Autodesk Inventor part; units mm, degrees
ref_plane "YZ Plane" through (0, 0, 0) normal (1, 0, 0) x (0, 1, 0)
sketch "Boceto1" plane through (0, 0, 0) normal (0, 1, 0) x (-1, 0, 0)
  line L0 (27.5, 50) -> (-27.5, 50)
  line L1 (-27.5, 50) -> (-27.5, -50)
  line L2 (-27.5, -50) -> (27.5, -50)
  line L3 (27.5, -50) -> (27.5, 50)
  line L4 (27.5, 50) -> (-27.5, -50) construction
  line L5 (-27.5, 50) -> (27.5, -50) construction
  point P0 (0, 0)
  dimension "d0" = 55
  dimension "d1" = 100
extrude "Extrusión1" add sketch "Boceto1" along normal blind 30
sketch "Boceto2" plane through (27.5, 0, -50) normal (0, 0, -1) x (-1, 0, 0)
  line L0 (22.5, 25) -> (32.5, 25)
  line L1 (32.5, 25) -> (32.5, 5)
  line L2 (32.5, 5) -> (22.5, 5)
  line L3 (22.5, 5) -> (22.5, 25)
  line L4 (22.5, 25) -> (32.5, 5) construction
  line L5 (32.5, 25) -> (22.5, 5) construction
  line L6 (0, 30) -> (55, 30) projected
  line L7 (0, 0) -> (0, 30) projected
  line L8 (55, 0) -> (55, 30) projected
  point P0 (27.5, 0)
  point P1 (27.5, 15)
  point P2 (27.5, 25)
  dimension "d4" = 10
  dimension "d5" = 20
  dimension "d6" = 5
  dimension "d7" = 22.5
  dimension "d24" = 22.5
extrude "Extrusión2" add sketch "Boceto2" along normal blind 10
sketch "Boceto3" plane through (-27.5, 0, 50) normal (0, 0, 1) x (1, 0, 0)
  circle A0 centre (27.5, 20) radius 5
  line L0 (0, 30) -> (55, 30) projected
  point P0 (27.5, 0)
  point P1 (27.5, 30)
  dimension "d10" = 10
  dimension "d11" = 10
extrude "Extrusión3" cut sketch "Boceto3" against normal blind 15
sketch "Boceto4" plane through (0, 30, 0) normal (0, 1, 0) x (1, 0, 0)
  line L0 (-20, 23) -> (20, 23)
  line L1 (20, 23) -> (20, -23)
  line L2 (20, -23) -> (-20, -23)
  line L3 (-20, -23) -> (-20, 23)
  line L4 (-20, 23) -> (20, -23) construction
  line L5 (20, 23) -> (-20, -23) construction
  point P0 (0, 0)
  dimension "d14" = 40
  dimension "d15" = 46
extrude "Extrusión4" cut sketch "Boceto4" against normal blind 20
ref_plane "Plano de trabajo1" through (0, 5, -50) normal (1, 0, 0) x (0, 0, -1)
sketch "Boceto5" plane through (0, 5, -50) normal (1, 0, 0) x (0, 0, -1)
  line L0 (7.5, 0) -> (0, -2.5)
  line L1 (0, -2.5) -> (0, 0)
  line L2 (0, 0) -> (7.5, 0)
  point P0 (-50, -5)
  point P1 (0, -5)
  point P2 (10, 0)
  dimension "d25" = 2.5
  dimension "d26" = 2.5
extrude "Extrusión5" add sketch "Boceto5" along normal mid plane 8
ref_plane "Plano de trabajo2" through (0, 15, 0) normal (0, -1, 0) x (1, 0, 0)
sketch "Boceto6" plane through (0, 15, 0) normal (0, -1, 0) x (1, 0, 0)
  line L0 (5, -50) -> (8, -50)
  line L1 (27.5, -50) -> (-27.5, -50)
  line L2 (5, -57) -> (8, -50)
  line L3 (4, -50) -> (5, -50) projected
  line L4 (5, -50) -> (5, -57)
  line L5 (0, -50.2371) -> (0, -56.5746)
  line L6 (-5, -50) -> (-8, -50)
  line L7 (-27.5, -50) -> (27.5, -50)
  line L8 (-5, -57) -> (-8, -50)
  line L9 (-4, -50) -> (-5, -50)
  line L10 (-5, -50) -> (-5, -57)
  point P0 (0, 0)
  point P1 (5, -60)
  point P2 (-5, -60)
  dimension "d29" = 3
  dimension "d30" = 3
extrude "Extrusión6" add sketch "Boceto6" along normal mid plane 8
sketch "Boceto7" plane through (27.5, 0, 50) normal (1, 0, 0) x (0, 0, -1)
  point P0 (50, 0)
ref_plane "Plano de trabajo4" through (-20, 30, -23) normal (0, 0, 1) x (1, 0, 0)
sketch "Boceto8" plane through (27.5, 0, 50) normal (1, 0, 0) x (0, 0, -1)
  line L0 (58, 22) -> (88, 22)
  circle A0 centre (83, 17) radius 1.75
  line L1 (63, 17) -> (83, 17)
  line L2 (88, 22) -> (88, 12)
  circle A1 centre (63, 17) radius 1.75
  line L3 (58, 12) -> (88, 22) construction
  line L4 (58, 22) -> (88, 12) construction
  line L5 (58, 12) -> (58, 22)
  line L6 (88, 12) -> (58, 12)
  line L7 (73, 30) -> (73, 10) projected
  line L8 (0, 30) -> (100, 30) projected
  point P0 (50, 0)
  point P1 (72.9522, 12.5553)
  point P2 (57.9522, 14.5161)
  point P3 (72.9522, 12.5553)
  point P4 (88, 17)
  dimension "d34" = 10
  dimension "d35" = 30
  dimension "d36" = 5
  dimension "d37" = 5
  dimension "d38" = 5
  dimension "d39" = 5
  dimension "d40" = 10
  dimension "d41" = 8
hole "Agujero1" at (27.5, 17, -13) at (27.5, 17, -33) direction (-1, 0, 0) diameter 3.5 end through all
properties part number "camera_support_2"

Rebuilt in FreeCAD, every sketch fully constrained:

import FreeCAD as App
import Part
import Sketcher


def add_polygon(sketch, points):
    """Adds a closed chain of lines whose ends are joined by coincident constraints."""
    first, n = sketch.GeometryCount, len(points)
    for a, b in zip(points, points[1:] + points[:1]):
        sketch.addGeometry(Part.LineSegment(App.Vector(*a, 0), App.Vector(*b, 0)), False)
    for i in range(n):
        sketch.addConstraint(Sketcher.Constraint("Coincident", first + i, 2, first + (i + 1) % n, 1))

doc = App.newDocument("Part")
body = doc.addObject("PartDesign::Body", "Body")

# Sketch on XZ plane
sketch1 = doc.addObject("Sketcher::SketchObject", "Sketch")
body.addObject(sketch1)
sketch1.AttachmentSupport = (doc.XZ_Plane, [""])
sketch1.MapMode = "FlatFace"
add_polygon(sketch1, [(-27.5, -50), (-27.5, 50), (27.5, 50), (27.5, -50)])  # lines 0-3
sketch1.addConstraint(Sketcher.Constraint("Vertical", 0))
sketch1.addConstraint(Sketcher.Constraint("Horizontal", 1))
sketch1.addConstraint(Sketcher.Constraint("Vertical", 2))
sketch1.addConstraint(Sketcher.Constraint("Horizontal", 3))
sketch1.addConstraint(Sketcher.Constraint("Symmetric", 0, 2, 2, 2, -1, 1))
sketch1.addConstraint(Sketcher.Constraint("DistanceX", 1, 1, 1, 2, 55.0))
sketch1.addConstraint(Sketcher.Constraint("DistanceY", 0, 1, 0, 2, 100.0))
pad1 = doc.addObject("PartDesign::Pad", "Pad")
body.addObject(pad1)
pad1.Profile = sketch1
pad1.Length = 30
pad1.Reversed = True

# Sketch on XY plane
sketch2 = doc.addObject("Sketcher::SketchObject", "Sketch001")
body.addObject(sketch2)
sketch2.AttachmentSupport = (doc.XY_Plane, [""])
sketch2.MapMode = "FlatFace"
sketch2.AttachmentOffset = App.Placement(App.Vector(0, 0, -50), App.Rotation())
add_polygon(sketch2, [(-5, 25), (5, 25), (5, 5), (-5, 5)])  # lines 0-3
sketch2.addConstraint(Sketcher.Constraint("Horizontal", 0))
sketch2.addConstraint(Sketcher.Constraint("Vertical", 1))
sketch2.addConstraint(Sketcher.Constraint("Horizontal", 2))
sketch2.addConstraint(Sketcher.Constraint("Vertical", 3))
sketch2.addConstraint(Sketcher.Constraint("DistanceX", 0, 1, 0, 2, 10.0))
sketch2.addConstraint(Sketcher.Constraint("DistanceY", 1, 2, 1, 1, 20.0))
sketch2.addConstraint(Sketcher.Constraint("DistanceX", -1, 1, 0, 2, 5.0))
sketch2.addConstraint(Sketcher.Constraint("DistanceY", -1, 1, 1, 2, 5.0))
pad2 = doc.addObject("PartDesign::Pad", "Pad001")
body.addObject(pad2)
pad2.Profile = sketch2
pad2.Length = 10
pad2.Reversed = True

# Sketch on XY plane
sketch3 = doc.addObject("Sketcher::SketchObject", "Sketch002")
body.addObject(sketch3)
sketch3.AttachmentSupport = (doc.XY_Plane, [""])
sketch3.MapMode = "FlatFace"
sketch3.AttachmentOffset = App.Placement(App.Vector(0, 0, 50), App.Rotation())
sketch3.addGeometry(Part.Circle(App.Vector(0, 20, 0), App.Vector(0, 0, 1), 5), False)
sketch3.addConstraint(Sketcher.Constraint("PointOnObject", 0, 3, -2))
sketch3.addConstraint(Sketcher.Constraint("Diameter", 0, 10.0))
sketch3.addConstraint(Sketcher.Constraint("DistanceY", -1, 1, 0, 3, 20.0))
pocket1 = doc.addObject("PartDesign::Pocket", "Pocket")
body.addObject(pocket1)
pocket1.Profile = sketch3
pocket1.Length = 15

# Sketch on XZ plane
sketch4 = doc.addObject("Sketcher::SketchObject", "Sketch003")
body.addObject(sketch4)
sketch4.AttachmentSupport = (doc.XZ_Plane, [""])
sketch4.MapMode = "FlatFace"
sketch4.AttachmentOffset = App.Placement(App.Vector(0, 0, -30), App.Rotation())
add_polygon(sketch4, [(20, -23), (-20, -23), (-20, 23), (20, 23)])  # lines 0-3
sketch4.addConstraint(Sketcher.Constraint("Horizontal", 0))
sketch4.addConstraint(Sketcher.Constraint("Vertical", 1))
sketch4.addConstraint(Sketcher.Constraint("Horizontal", 2))
sketch4.addConstraint(Sketcher.Constraint("Vertical", 3))
sketch4.addConstraint(Sketcher.Constraint("Symmetric", 0, 2, 2, 2, -1, 1))
sketch4.addConstraint(Sketcher.Constraint("DistanceX", 0, 2, 0, 1, 40.0))
sketch4.addConstraint(Sketcher.Constraint("DistanceY", 1, 1, 1, 2, 46.0))
pocket2 = doc.addObject("PartDesign::Pocket", "Pocket001")
body.addObject(pocket2)
pocket2.Profile = sketch4
pocket2.Length = 20
pocket2.Reversed = True

# Sketch on YZ plane
sketch5 = doc.addObject("Sketcher::SketchObject", "Sketch004")
body.addObject(sketch5)
sketch5.AttachmentSupport = (doc.YZ_Plane, [""])
sketch5.MapMode = "FlatFace"
add_polygon(sketch5, [(2.5, -50), (5, -57.5), (5, -50)])  # lines 0-2
sketch5.addConstraint(Sketcher.Constraint("Vertical", 1))
sketch5.addConstraint(Sketcher.Constraint("Horizontal", 2))
sketch5.addConstraint(Sketcher.Constraint("DistanceX", 2, 2, 2, 1, 2.5))
sketch5.addConstraint(Sketcher.Constraint("DistanceX", -1, 1, 2, 2, 2.5))
sketch5.addConstraint(Sketcher.Constraint("DistanceY", 1, 1, 1, 2, 7.5))
sketch5.addConstraint(Sketcher.Constraint("DistanceY", 1, 2, -1, 1, 50.0))
pad3 = doc.addObject("PartDesign::Pad", "Pad002")
body.addObject(pad3)
pad3.Profile = sketch5
pad3.Length = 8
pad3.Midplane = True

# Sketch on XZ plane
sketch6 = doc.addObject("Sketcher::SketchObject", "Sketch005")
body.addObject(sketch6)
sketch6.AttachmentSupport = (doc.XZ_Plane, [""])
sketch6.MapMode = "FlatFace"
sketch6.AttachmentOffset = App.Placement(App.Vector(0, 0, -15), App.Rotation())
add_polygon(sketch6, [(-5, -57), (-5, -50), (-8, -50)])  # lines 0-2
add_polygon(sketch6, [(8, -50), (5, -50), (5, -57)])  # lines 3-5
sketch6.addConstraint(Sketcher.Constraint("Vertical", 0))
sketch6.addConstraint(Sketcher.Constraint("Horizontal", 1))
sketch6.addConstraint(Sketcher.Constraint("Horizontal", 3))
sketch6.addConstraint(Sketcher.Constraint("Vertical", 4))
sketch6.addConstraint(Sketcher.Constraint("Symmetric", 0, 2, 3, 2, -2))
sketch6.addConstraint(Sketcher.Constraint("Horizontal", 2, 2, 4, 2))
sketch6.addConstraint(Sketcher.Constraint("Equal", 1, 3))
sketch6.addConstraint(Sketcher.Constraint("DistanceX", 1, 2, 1, 1, 3.0))
sketch6.addConstraint(Sketcher.Constraint("DistanceY", 0, 1, 0, 2, 7.0))
sketch6.addConstraint(Sketcher.Constraint("DistanceX", 0, 2, -1, 1, 5.0))
sketch6.addConstraint(Sketcher.Constraint("DistanceY", 0, 2, -1, 1, 50.0))
pad4 = doc.addObject("PartDesign::Pad", "Pad003")
body.addObject(pad4)
pad4.Profile = sketch6
pad4.Length = 8
pad4.Midplane = True

# Sketch on YZ plane
sketch7 = doc.addObject("Sketcher::SketchObject", "Sketch006")
body.addObject(sketch7)
sketch7.AttachmentSupport = (doc.YZ_Plane, [""])
sketch7.MapMode = "FlatFace"
sketch7.AttachmentOffset = App.Placement(App.Vector(0, 0, 27.5), App.Rotation())
sketch7.addGeometry(Part.Circle(App.Vector(17, -13, 0), App.Vector(0, 0, 1), 1.75), False)
sketch7.addGeometry(Part.Circle(App.Vector(17, -33, 0), App.Vector(0, 0, 1), 1.75), False)
sketch7.addConstraint(Sketcher.Constraint("Equal", 0, 1))
sketch7.addConstraint(Sketcher.Constraint("Vertical", 0, 3, 1, 3))
sketch7.addConstraint(Sketcher.Constraint("Diameter", 0, 3.5))
sketch7.addConstraint(Sketcher.Constraint("DistanceX", -1, 1, 0, 3, 17.0))
sketch7.addConstraint(Sketcher.Constraint("DistanceY", 0, 3, -1, 1, 13.0))
sketch7.addConstraint(Sketcher.Constraint("DistanceY", 1, 3, -1, 1, 33.0))
doc.recompute()
hole = doc.addObject("PartDesign::Hole", "Hole")
body.addObject(hole)
hole.Profile = sketch7
hole.ThreadType = "None"
hole.Diameter = 3.5
hole.DepthType = "ThroughAll"

doc.recompute()
